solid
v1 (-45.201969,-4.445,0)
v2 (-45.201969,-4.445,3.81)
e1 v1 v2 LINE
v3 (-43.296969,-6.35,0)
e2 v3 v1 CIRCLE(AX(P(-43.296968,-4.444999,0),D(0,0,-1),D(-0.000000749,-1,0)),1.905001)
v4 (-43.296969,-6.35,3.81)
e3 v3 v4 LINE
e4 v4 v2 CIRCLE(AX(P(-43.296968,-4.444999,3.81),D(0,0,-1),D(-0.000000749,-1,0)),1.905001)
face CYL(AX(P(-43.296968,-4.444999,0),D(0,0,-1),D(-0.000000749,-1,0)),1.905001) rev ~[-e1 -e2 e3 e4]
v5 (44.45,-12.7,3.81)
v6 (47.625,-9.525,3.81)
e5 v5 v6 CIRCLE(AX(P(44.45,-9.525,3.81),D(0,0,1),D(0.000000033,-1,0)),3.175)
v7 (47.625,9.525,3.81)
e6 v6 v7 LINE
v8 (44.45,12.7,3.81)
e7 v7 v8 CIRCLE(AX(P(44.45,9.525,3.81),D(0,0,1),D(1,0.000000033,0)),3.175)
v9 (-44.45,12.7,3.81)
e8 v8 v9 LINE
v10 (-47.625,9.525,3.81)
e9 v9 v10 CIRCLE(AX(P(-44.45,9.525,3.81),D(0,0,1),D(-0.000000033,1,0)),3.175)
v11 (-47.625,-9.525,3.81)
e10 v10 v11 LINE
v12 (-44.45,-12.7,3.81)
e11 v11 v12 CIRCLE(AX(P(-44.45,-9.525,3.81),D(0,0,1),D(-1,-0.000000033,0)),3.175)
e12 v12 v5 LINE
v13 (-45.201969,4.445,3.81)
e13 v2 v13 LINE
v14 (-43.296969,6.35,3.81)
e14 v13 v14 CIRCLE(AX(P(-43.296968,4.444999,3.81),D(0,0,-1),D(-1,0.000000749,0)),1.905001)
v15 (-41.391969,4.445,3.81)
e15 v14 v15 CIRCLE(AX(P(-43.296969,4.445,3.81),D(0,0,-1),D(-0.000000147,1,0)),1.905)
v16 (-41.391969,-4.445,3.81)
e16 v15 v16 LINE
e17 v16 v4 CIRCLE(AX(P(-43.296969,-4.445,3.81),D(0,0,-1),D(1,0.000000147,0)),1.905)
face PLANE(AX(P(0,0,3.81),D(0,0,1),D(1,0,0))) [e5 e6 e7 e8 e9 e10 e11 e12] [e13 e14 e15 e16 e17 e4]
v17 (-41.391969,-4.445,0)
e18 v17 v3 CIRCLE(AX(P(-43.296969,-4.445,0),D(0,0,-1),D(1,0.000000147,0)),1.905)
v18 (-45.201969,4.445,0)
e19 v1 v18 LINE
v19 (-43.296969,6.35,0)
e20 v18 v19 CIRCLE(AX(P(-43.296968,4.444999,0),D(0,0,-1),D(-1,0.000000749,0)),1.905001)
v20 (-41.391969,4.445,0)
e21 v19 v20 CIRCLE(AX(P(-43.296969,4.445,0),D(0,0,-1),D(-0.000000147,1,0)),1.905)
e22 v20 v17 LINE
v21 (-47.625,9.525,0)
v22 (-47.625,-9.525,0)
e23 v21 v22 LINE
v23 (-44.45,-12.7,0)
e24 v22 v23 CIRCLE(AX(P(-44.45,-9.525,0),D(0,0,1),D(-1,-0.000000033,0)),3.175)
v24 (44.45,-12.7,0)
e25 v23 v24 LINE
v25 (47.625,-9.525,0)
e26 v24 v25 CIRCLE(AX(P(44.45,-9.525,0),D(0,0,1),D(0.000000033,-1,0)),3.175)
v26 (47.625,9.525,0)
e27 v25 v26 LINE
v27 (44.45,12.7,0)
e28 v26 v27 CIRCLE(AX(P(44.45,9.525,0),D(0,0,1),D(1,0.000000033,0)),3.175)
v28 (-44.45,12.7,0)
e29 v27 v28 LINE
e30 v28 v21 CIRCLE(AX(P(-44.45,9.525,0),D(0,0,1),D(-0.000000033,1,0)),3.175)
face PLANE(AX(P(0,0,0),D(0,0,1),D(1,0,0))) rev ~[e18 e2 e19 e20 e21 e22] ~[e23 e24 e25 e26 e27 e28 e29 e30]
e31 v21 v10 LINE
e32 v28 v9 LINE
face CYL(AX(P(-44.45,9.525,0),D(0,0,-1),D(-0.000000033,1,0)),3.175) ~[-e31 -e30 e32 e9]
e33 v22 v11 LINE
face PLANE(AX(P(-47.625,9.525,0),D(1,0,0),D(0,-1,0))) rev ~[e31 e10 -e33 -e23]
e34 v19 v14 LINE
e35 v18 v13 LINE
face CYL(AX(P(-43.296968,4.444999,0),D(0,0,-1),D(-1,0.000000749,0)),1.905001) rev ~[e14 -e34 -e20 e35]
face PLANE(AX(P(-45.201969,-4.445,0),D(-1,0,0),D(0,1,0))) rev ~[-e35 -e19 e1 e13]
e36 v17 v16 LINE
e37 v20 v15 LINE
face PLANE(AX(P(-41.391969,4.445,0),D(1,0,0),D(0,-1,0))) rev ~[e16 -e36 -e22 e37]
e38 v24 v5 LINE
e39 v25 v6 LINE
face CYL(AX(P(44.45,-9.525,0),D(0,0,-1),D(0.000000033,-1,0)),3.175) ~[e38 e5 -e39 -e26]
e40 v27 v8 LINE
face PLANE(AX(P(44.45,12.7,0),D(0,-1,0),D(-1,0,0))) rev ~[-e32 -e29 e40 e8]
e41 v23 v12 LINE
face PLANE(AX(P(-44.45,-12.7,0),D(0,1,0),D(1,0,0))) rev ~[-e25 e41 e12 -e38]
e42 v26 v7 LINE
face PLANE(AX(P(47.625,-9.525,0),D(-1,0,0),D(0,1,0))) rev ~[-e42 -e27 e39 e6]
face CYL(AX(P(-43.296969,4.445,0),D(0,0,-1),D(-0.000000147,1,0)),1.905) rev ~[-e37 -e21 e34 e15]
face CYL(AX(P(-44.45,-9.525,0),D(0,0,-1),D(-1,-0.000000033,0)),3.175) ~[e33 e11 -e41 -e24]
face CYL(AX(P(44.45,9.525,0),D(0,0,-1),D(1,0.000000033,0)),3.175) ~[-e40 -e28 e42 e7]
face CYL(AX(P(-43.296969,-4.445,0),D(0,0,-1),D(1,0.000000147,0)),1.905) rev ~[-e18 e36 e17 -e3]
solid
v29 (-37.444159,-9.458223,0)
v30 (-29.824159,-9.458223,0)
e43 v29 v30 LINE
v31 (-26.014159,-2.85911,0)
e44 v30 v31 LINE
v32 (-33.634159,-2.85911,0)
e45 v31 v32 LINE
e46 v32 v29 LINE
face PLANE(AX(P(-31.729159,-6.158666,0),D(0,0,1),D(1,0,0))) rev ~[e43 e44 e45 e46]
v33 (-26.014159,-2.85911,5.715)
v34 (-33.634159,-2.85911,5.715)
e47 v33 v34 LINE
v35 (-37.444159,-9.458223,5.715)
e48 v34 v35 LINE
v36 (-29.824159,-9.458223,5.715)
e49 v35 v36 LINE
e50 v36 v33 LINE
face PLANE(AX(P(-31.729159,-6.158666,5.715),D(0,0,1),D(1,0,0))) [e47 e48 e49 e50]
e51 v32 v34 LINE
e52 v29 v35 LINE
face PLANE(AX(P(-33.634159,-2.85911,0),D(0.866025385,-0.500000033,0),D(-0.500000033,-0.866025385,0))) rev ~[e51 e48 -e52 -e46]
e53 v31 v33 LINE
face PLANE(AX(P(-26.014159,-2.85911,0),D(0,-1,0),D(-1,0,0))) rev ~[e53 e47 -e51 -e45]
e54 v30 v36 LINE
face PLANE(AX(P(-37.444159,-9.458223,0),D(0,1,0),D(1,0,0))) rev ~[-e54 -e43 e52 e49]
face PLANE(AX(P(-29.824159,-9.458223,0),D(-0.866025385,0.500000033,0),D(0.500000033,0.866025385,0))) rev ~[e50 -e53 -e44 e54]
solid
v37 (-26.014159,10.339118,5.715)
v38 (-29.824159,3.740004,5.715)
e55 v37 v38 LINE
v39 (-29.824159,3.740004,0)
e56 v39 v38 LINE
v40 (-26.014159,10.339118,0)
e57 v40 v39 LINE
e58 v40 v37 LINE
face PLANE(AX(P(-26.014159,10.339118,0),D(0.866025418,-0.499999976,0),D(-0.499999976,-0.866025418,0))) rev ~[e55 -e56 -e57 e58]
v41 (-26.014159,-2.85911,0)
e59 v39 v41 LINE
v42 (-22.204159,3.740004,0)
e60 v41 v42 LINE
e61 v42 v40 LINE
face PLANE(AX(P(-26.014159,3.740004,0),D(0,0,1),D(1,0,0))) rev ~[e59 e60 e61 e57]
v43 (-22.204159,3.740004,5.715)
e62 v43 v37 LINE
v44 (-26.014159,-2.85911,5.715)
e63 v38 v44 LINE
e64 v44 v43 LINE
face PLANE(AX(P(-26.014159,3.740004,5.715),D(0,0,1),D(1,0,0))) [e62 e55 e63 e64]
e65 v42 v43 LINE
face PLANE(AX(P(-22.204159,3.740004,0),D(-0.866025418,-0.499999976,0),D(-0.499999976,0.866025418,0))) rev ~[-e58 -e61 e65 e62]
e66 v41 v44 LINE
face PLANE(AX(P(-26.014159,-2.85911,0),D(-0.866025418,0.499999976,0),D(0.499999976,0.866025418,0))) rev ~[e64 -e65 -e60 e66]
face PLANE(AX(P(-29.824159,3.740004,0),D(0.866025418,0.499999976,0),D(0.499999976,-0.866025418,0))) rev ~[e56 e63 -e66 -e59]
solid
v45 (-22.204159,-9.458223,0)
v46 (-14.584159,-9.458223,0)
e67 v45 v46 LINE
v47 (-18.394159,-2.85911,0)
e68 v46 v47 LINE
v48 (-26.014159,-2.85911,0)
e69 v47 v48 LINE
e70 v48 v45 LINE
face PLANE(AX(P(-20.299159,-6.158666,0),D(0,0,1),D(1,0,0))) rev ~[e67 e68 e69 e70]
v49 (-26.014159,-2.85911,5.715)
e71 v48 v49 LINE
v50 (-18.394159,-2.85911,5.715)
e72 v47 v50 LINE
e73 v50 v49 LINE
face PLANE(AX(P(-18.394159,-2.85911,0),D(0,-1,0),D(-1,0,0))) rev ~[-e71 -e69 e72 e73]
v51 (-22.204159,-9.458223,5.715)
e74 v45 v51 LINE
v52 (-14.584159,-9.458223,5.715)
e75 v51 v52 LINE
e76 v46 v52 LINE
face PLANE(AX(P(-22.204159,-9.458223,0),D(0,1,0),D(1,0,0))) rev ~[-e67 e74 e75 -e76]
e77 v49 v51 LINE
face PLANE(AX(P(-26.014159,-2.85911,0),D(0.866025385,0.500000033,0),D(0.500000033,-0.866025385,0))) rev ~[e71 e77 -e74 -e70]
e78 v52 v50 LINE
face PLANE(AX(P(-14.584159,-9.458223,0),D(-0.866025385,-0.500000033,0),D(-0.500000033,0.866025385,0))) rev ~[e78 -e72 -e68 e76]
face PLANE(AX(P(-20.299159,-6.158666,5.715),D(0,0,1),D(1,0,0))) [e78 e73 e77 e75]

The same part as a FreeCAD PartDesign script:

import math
import FreeCAD as App
import Part
import Sketcher
Q = App.Units.Quantity

doc = App.newDocument("Part")
body = doc.addObject("PartDesign::Body", "Body")

# Sketch on XY plane
sketch1 = doc.addObject("Sketcher::SketchObject", "Sketch")
body.addObject(sketch1)
sketch1.AttachmentSupport = (doc.XY_Plane, [""])
sketch1.MapMode = "FlatFace"
sketch1.addGeometry(Part.LineSegment(App.Vector(-44.45, -12.7, 0), App.Vector(44.45, -12.7, 0)), False)
sketch1.addGeometry(Part.ArcOfCircle(Part.Circle(App.Vector(44.45, -9.525, 0), App.Vector(0, 0, 1), 3.175), math.radians(-89.999998), math.radians(-0.000002)), False)
sketch1.addGeometry(Part.LineSegment(App.Vector(47.625, -9.525, 0), App.Vector(47.625, 9.525, 0)), False)
sketch1.addGeometry(Part.ArcOfCircle(Part.Circle(App.Vector(44.45, 9.525, 0), App.Vector(0, 0, 1), 3.175), math.radians(0.000002), math.radians(89.999998)), False)
sketch1.addGeometry(Part.LineSegment(App.Vector(44.45, 12.7, 0), App.Vector(-44.45, 12.7, 0)), False)
sketch1.addGeometry(Part.ArcOfCircle(Part.Circle(App.Vector(-44.45, 9.525, 0), App.Vector(0, 0, 1), 3.175), math.radians(90.000002), math.radians(179.999998)), False)
sketch1.addGeometry(Part.LineSegment(App.Vector(-47.625, 9.525, 0), App.Vector(-47.625, -9.525, 0)), False)
sketch1.addGeometry(Part.ArcOfCircle(Part.Circle(App.Vector(-44.45, -9.525, 0), App.Vector(0, 0, 1), 3.175), math.radians(-179.999998), math.radians(-90.000002)), False)
sketch1.addGeometry(Part.ArcOfCircle(Part.Circle(App.Vector(-43.296969, 4.445, 0), App.Vector(0, 0, 1), 1.905), math.radians(-0.000008), math.radians(90.000008)), False)
sketch1.addGeometry(Part.LineSegment(App.Vector(-41.391969, 4.445, 0), App.Vector(-41.391969, -4.445, 0)), False)
sketch1.addGeometry(Part.ArcOfCircle(Part.Circle(App.Vector(-43.296969, -4.445, 0), App.Vector(0, 0, 1), 1.905), math.radians(-90.000008), math.radians(0.000008)), False)
sketch1.addGeometry(Part.ArcOfCircle(Part.Circle(App.Vector(-43.296968, -4.444999, 0), App.Vector(0, 0, 1), 1.905001), math.radians(-179.999957), math.radians(-90.000043)), False)
sketch1.addGeometry(Part.LineSegment(App.Vector(-45.201969, -4.445, 0), App.Vector(-45.201969, 4.445, 0)), False)
sketch1.addGeometry(Part.ArcOfCircle(Part.Circle(App.Vector(-43.296968, 4.444999, 0), App.Vector(0, 0, 1), 1.905001), math.radians(90.000043), math.radians(179.999957)), False)
sketch1.addConstraint(Sketcher.Constraint("Tangent", 0, 2, 1, 1))
sketch1.addConstraint(Sketcher.Constraint("Tangent", 1, 2, 2, 1))
sketch1.addConstraint(Sketcher.Constraint("Tangent", 2, 2, 3, 1))
sketch1.addConstraint(Sketcher.Constraint("Tangent", 3, 2, 4, 1))
sketch1.addConstraint(Sketcher.Constraint("Tangent", 4, 2, 5, 1))
sketch1.addConstraint(Sketcher.Constraint("Tangent", 5, 2, 6, 1))
sketch1.addConstraint(Sketcher.Constraint("Tangent", 6, 2, 7, 1))
sketch1.addConstraint(Sketcher.Constraint("Tangent", 7, 2, 0, 1))
sketch1.addConstraint(Sketcher.Constraint("Tangent", 8, 1, 9, 1))
sketch1.addConstraint(Sketcher.Constraint("Tangent", 9, 2, 10, 2))
sketch1.addConstraint(Sketcher.Constraint("Tangent", 10, 1, 11, 2))
sketch1.addConstraint(Sketcher.Constraint("Tangent", 11, 1, 12, 1))
sketch1.addConstraint(Sketcher.Constraint("Tangent", 12, 2, 13, 2))
sketch1.addConstraint(Sketcher.Constraint("Tangent", 13, 1, 8, 2))
sketch1.addConstraint(Sketcher.Constraint("Horizontal", 0))
sketch1.addConstraint(Sketcher.Constraint("Vertical", 2))
sketch1.addConstraint(Sketcher.Constraint("Horizontal", 4))
sketch1.addConstraint(Sketcher.Constraint("Vertical", 6))
sketch1.addConstraint(Sketcher.Constraint("Vertical", 9))
sketch1.addConstraint(Sketcher.Constraint("Vertical", 12))
sketch1.addConstraint(Sketcher.Constraint("Equal", 1, 3))
sketch1.addConstraint(Sketcher.Constraint("Equal", 3, 5))
sketch1.addConstraint(Sketcher.Constraint("Equal", 5, 7))
sketch1.addConstraint(Sketcher.Constraint("Equal", 8, 10))
sketch1.addConstraint(Sketcher.Constraint("Equal", 10, 11))
sketch1.addConstraint(Sketcher.Constraint("Symmetric", 1, 3, 5, 3, -1, 1))
sketch1.addConstraint(Sketcher.Constraint("Symmetric", 10, 1, 13, 1, -1))
sketch1.addConstraint(Sketcher.Constraint("Vertical", 13, 3, 10, 1))
sketch1.addConstraint(Sketcher.Constraint("DistanceX", 0, 1, 0, 2, Q("3.5 in")))
sketch1.addConstraint(Sketcher.Constraint("Radius", 1, Q("0.125 in")))
sketch1.addConstraint(Sketcher.Constraint("Radius", 8, Q("0.075 in")))
sketch1.addConstraint(Sketcher.Constraint("DistanceY", 0, 2, 3, 2, Q("1 in")))
sketch1.addConstraint(Sketcher.Constraint("DistanceY", 9, 2, 9, 1, Q("0.35 in")))
sketch1.addConstraint(Sketcher.Constraint("DistanceX", 8, 3, -1, 1, Q("43.296969 mm")))
pad1 = doc.addObject("PartDesign::Pad", "Pad")
body.addObject(pad1)
pad1.Profile = sketch1
pad1.Length = Q("0.15 in")
body2 = doc.addObject("PartDesign::Body", "Body001")
body2.AllowCompound = True

# Sketch on XY plane
sketch2 = doc.addObject("Sketcher::SketchObject", "Sketch001")
body2.addObject(sketch2)
sketch2.AttachmentSupport = (doc.getObject("XY_Plane001"), [""])
sketch2.MapMode = "FlatFace"
sketch2.addGeometry(Part.LineSegment(App.Vector(-29.824159, 3.740004, 0), App.Vector(-26.014159, -2.85911, 0)), False)
sketch2.addGeometry(Part.LineSegment(App.Vector(-26.014159, -2.85911, 0), App.Vector(-22.204159, 3.740004, 0)), False)
sketch2.addGeometry(Part.LineSegment(App.Vector(-22.204159, 3.740004, 0), App.Vector(-26.014159, 10.339118, 0)), False)
sketch2.addGeometry(Part.LineSegment(App.Vector(-26.014159, 10.339118, 0), App.Vector(-29.824159, 3.740004, 0)), False)
sketch2.addGeometry(Part.LineSegment(App.Vector(-29.824159, -9.458223, 0), App.Vector(-26.014159, -2.85911, 0)), False)
sketch2.addGeometry(Part.LineSegment(App.Vector(-26.014159, -2.85911, 0), App.Vector(-33.634159, -2.85911, 0)), False)
sketch2.addGeometry(Part.LineSegment(App.Vector(-33.634159, -2.85911, 0), App.Vector(-37.444159, -9.458223, 0)), False)
sketch2.addGeometry(Part.LineSegment(App.Vector(-37.444159, -9.458223, 0), App.Vector(-29.824159, -9.458223, 0)), False)
sketch2.addGeometry(Part.LineSegment(App.Vector(-18.394159, -2.85911, 0), App.Vector(-26.014159, -2.85911, 0)), False)
sketch2.addGeometry(Part.LineSegment(App.Vector(-26.014159, -2.85911, 0), App.Vector(-22.204159, -9.458223, 0)), False)
sketch2.addGeometry(Part.LineSegment(App.Vector(-22.204159, -9.458223, 0), App.Vector(-14.584159, -9.458223, 0)), False)
sketch2.addGeometry(Part.LineSegment(App.Vector(-14.584159, -9.458223, 0), App.Vector(-18.394159, -2.85911, 0)), False)
sketch2.addConstraint(Sketcher.Constraint("Coincident", 0, 2, 1, 1))
sketch2.addConstraint(Sketcher.Constraint("Coincident", 1, 2, 2, 1))
sketch2.addConstraint(Sketcher.Constraint("Coincident", 2, 2, 3, 1))
sketch2.addConstraint(Sketcher.Constraint("Coincident", 3, 2, 0, 1))
sketch2.addConstraint(Sketcher.Constraint("Coincident", 4, 2, 5, 1))
sketch2.addConstraint(Sketcher.Constraint("Coincident", 5, 2, 6, 1))
sketch2.addConstraint(Sketcher.Constraint("Coincident", 6, 2, 7, 1))
sketch2.addConstraint(Sketcher.Constraint("Coincident", 7, 2, 4, 1))
sketch2.addConstraint(Sketcher.Constraint("Coincident", 8, 2, 9, 1))
sketch2.addConstraint(Sketcher.Constraint("Coincident", 9, 2, 10, 1))
sketch2.addConstraint(Sketcher.Constraint("Coincident", 10, 2, 11, 1))
sketch2.addConstraint(Sketcher.Constraint("Coincident", 11, 2, 8, 1))
sketch2.addConstraint(Sketcher.Constraint("Horizontal", 5))
sketch2.addConstraint(Sketcher.Constraint("Horizontal", 7))
sketch2.addConstraint(Sketcher.Constraint("Horizontal", 8))
sketch2.addConstraint(Sketcher.Constraint("Horizontal", 10))
sketch2.addConstraint(Sketcher.Constraint("Coincident", 4, 2, 0, 2))
sketch2.addConstraint(Sketcher.Constraint("Coincident", 8, 2, 0, 2))
sketch2.addConstraint(Sketcher.Constraint("Parallel", 0, 2))
sketch2.addConstraint(Sketcher.Constraint("Parallel", 1, 3))
sketch2.addConstraint(Sketcher.Constraint("Parallel", 3, 4))
sketch2.addConstraint(Sketcher.Constraint("Parallel", 4, 6))
sketch2.addConstraint(Sketcher.Constraint("Parallel", 2, 9))
sketch2.addConstraint(Sketcher.Constraint("Parallel", 9, 11))
sketch2.addConstraint(Sketcher.Constraint("Horizontal", 1, 2, 3, 2))
sketch2.addConstraint(Sketcher.Constraint("Horizontal", 7, 2, 9, 2))
sketch2.addConstraint(Sketcher.Constraint("Vertical", 0, 2, 2, 2))
sketch2.addConstraint(Sketcher.Constraint("Vertical", 3, 2, 7, 2))
sketch2.addConstraint(Sketcher.Constraint("Equal", 7, 8))
sketch2.addConstraint(Sketcher.Constraint("DistanceX", 5, 2, 5, 1, Q("0.3 in")))
sketch2.addConstraint(Sketcher.Constraint("Angle", 0, Q("-60.000002 deg")))
sketch2.addConstraint(Sketcher.Constraint("Distance", 0, Q("0.3 in")))
sketch2.addConstraint(Sketcher.Constraint("DistanceX", 0, 2, -1, 1, Q("26.014159 mm")))
sketch2.addConstraint(Sketcher.Constraint("DistanceY", 0, 2, -1, 1, Q("2.85911 mm")))
pad2 = doc.addObject("PartDesign::Pad", "Pad001")
body2.addObject(pad2)
pad2.Profile = sketch2
pad2.Length = Q("0.225 in")

doc.recompute()
